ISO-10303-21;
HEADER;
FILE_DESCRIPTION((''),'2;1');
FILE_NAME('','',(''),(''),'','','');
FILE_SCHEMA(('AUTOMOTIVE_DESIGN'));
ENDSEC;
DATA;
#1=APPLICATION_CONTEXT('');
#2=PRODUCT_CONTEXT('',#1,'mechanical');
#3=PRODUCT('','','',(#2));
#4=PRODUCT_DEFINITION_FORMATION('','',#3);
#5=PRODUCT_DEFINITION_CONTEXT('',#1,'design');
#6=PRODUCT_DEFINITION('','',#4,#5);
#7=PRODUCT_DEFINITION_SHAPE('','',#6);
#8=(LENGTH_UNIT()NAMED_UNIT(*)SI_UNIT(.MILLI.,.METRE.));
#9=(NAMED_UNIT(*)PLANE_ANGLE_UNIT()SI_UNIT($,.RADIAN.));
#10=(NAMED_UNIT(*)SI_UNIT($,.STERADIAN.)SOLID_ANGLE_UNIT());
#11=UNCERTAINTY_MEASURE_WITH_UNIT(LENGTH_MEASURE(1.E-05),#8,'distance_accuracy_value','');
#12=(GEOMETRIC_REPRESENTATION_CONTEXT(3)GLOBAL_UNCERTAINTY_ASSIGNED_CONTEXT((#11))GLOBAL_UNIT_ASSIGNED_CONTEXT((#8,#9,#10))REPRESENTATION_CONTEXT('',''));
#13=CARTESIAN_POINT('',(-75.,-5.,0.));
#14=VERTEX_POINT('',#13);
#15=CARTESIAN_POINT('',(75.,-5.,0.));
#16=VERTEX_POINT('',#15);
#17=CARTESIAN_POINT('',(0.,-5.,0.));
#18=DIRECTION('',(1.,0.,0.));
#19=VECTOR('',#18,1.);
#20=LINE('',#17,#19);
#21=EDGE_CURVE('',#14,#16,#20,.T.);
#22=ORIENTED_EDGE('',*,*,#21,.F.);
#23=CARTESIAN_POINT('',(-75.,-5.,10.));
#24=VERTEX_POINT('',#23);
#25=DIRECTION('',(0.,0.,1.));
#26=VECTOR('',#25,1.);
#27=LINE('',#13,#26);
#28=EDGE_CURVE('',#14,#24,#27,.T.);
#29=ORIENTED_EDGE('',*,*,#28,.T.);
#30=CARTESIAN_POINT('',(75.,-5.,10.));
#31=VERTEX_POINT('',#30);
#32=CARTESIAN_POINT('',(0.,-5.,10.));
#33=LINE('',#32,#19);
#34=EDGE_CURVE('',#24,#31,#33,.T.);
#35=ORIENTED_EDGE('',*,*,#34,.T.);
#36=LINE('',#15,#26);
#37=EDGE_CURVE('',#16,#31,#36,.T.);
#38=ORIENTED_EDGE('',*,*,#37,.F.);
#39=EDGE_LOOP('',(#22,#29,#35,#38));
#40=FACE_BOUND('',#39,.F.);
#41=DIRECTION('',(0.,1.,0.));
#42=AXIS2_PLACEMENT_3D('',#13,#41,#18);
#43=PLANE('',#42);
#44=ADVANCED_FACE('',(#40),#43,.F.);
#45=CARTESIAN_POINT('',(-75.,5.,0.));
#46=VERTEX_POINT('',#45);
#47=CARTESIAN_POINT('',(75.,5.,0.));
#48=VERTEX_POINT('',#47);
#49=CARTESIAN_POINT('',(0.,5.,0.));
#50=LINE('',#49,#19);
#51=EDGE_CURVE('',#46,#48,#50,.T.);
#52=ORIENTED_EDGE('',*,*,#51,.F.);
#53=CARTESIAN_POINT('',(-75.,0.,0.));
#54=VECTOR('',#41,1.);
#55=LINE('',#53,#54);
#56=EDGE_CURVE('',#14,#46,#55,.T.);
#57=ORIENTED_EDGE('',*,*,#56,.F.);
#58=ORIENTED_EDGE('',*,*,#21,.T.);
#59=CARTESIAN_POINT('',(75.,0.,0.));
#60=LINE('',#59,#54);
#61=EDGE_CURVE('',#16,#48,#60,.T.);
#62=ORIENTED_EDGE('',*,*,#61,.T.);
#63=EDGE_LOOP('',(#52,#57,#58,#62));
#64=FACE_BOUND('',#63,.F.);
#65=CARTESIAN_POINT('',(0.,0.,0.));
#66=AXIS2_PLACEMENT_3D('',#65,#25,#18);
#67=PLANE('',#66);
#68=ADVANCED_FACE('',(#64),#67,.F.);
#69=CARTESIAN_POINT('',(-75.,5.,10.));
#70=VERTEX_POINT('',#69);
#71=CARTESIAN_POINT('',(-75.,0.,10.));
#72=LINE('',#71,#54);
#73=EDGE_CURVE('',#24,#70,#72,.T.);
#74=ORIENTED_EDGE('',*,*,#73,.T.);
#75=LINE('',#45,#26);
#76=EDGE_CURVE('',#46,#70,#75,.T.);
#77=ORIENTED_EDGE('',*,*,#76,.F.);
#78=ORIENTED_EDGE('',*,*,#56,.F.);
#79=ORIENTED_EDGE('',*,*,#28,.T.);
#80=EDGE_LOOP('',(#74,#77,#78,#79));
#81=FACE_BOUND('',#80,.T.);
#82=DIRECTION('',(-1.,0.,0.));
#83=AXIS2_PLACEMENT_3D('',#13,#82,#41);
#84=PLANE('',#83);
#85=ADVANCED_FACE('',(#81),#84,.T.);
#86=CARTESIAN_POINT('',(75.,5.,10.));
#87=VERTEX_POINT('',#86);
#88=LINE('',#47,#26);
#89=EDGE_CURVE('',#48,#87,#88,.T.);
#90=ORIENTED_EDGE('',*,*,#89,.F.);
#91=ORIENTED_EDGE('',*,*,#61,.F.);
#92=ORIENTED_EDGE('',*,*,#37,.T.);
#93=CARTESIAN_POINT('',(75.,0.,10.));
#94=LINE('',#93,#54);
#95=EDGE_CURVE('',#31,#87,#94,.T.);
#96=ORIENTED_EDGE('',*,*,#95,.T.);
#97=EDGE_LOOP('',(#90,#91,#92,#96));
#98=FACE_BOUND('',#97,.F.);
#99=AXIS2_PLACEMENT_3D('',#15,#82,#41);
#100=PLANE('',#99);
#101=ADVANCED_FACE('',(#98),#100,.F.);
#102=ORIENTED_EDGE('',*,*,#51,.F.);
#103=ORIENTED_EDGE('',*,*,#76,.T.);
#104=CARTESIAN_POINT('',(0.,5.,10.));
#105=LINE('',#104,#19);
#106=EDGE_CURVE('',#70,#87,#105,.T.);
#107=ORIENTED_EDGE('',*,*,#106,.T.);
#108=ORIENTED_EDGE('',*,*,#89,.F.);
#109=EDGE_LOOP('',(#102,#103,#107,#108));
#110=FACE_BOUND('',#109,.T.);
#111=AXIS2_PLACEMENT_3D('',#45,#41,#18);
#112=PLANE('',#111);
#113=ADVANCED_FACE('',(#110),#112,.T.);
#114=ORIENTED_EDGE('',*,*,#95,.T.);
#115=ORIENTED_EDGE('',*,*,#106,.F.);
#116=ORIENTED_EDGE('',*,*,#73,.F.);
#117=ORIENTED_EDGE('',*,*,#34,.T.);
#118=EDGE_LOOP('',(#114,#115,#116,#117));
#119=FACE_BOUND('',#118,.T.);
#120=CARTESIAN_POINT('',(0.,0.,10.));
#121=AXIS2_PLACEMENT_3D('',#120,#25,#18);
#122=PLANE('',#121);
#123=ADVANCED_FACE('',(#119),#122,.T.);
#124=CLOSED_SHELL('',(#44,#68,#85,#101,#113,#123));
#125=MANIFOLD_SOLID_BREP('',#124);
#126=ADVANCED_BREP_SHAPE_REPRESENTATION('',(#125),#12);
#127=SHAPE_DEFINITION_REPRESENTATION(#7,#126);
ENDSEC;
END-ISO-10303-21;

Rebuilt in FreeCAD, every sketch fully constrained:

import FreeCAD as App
import Part
import Sketcher

V = App.Vector


def add_polygon(sketch, points):
    """Adds a closed chain of lines whose ends are joined by coincident constraints."""
    first, n = sketch.GeometryCount, len(points)
    for a, b in zip(points, points[1:] + points[:1]):
        sketch.addGeometry(Part.LineSegment(App.Vector(*a, 0), App.Vector(*b, 0)), False)
    for i in range(n):
        sketch.addConstraint(Sketcher.Constraint("Coincident", first + i, 2, first + (i + 1) % n, 1))

doc = App.newDocument("Part")
body = doc.addObject("PartDesign::Body", "Body")

# Sketch on XY plane
sketch1 = doc.addObject("Sketcher::SketchObject", "Sketch")
body.addObject(sketch1)
sketch1.AttachmentSupport = (doc.XY_Plane, [""])
sketch1.MapMode = "FlatFace"
add_polygon(sketch1, [(-75, 5), (-75, -5), (75, -5), (75, 5)])  # lines 0-3
sketch1.addConstraint(Sketcher.Constraint("Vertical", 0))
sketch1.addConstraint(Sketcher.Constraint("Horizontal", 1))
sketch1.addConstraint(Sketcher.Constraint("Vertical", 2))
sketch1.addConstraint(Sketcher.Constraint("Horizontal", 3))
sketch1.addConstraint(Sketcher.Constraint("Symmetric", 0, 2, 2, 2, -1, 1))
sketch1.addConstraint(Sketcher.Constraint("DistanceX", 1, 1, 1, 2, 150.0))
sketch1.addConstraint(Sketcher.Constraint("DistanceY", 0, 2, 0, 1, 10.0))
pad1 = doc.addObject("PartDesign::Pad", "Pad")
body.addObject(pad1)
pad1.Profile = sketch1
pad1.Length = 10

doc.recompute()
